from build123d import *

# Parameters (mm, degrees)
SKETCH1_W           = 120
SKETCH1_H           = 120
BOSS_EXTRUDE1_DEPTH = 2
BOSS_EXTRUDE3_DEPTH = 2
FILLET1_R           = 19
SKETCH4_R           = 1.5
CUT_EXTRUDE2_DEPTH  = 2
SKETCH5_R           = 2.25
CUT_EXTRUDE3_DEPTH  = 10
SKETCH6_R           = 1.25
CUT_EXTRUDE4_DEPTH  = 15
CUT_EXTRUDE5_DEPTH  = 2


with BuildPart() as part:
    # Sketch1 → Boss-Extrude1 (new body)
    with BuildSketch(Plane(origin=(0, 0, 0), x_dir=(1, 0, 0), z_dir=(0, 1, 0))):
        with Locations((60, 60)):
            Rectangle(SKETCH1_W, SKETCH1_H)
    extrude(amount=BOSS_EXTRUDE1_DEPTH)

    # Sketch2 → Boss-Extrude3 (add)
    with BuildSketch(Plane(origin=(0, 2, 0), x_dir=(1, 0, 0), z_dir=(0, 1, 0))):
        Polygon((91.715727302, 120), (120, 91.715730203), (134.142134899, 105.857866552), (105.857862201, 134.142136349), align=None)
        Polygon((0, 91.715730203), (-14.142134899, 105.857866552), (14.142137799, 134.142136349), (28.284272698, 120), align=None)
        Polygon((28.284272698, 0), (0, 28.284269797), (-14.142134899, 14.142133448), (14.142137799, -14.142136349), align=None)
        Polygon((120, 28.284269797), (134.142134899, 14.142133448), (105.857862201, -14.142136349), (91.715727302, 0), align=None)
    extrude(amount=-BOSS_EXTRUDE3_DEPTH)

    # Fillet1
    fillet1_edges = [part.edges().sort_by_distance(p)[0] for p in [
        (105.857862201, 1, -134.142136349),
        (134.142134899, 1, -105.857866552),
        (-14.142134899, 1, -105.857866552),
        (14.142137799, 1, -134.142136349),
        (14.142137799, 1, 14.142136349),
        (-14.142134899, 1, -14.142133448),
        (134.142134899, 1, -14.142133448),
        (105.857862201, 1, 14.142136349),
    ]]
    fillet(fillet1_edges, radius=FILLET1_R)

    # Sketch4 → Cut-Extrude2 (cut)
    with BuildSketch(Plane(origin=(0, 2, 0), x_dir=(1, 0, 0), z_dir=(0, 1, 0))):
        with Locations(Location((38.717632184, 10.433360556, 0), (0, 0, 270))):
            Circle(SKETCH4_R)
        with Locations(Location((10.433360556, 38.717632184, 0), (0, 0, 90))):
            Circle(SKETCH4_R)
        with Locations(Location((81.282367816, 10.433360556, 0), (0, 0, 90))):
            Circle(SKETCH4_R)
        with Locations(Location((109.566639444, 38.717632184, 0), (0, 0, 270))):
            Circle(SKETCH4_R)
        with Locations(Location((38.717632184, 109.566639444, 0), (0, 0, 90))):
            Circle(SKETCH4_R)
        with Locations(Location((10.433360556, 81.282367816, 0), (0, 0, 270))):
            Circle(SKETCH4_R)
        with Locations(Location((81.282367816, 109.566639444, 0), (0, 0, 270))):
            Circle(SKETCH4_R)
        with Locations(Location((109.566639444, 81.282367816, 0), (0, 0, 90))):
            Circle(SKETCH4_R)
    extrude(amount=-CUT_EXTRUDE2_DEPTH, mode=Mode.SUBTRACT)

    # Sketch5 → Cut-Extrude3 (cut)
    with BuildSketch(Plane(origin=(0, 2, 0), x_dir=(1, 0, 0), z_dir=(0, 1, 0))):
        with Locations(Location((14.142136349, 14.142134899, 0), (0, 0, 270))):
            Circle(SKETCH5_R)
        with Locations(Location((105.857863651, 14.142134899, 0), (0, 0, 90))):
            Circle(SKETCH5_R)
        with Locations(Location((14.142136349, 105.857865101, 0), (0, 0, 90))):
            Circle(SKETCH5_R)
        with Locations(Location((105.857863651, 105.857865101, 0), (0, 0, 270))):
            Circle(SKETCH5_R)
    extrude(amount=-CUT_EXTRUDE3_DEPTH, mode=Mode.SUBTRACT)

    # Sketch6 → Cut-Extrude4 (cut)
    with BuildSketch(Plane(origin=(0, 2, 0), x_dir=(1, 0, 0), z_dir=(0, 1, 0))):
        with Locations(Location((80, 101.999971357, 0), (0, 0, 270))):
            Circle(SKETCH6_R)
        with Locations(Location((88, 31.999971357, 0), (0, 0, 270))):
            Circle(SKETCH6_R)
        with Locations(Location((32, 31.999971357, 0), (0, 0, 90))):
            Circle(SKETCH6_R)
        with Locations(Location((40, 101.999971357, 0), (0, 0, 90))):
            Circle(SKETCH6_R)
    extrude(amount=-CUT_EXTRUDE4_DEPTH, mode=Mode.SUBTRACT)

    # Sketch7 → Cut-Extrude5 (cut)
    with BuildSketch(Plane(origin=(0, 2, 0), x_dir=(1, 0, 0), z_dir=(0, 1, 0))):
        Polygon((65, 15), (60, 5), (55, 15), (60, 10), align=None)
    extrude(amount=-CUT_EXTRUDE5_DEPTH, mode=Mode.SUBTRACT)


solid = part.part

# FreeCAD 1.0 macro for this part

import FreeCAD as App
import Part
import Sketcher
from FreeCAD import Vector


def edges_at(feature, points):
    """Names of the edges that pass closest to the given points."""
    edges = feature.Shape.Edges
    near = lambda p: min(range(len(edges)), key=lambda i: edges[i].distToShape(Part.Vertex(*p))[0])
    return sorted({f"Edge{near(p) + 1}" for p in points})

doc = App.newDocument("Part")
params = doc.addObject("Spreadsheet::Sheet", "Params")
for row, (alias, value) in enumerate([
    ("sketch1_width", "120 mm"),
    ("pad1_length", "2 mm"),
    ("sketch2_length", "40 mm"),
    ("pad2_length", "2 mm"),
    ("fillet_radius", "19 mm"),
    ("sketch3_diameter", "3 mm"),
    ("pocket1_length", "2 mm"),
    ("sketch4_diameter", "4.5 mm"),
    ("pocket2_length", "10 mm"),
    ("sketch5_diameter", "2.5 mm"),
    ("pocket3_length", "15 mm"),
    ("pocket4_length", "2 mm"),
], start=1):
    params.set(f"A{row}", alias)
    params.set(f"B{row}", "=" + value)
    params.setAlias(f"B{row}", alias)

body = doc.addObject("PartDesign::Body", "Body")

# Sketch on XZ plane
sketch1 = doc.addObject("Sketcher::SketchObject", "Sketch")
body.addObject(sketch1)
sketch1.AttachmentSupport = (doc.XZ_Plane, [""])
sketch1.MapMode = "FlatFace"
sketch1.addGeometry([
    Part.LineSegment(Vector(0, -120, 0), Vector(0, 0, 0)),
    Part.LineSegment(Vector(0, 0, 0), Vector(120, 0, 0)),
    Part.LineSegment(Vector(120, 0, 0), Vector(120, -120, 0)),
    Part.LineSegment(Vector(120, -120, 0), Vector(0, -120, 0)),
], False)
sketch1.addConstraint([
    Sketcher.Constraint("Coincident", 0, 2, 1, 1),
    Sketcher.Constraint("Coincident", 1, 2, 2, 1),
    Sketcher.Constraint("Coincident", 2, 2, 3, 1),
    Sketcher.Constraint("Coincident", 3, 2, 0, 1),
    Sketcher.Constraint("Vertical", 0),
    Sketcher.Constraint("Horizontal", 1),
    Sketcher.Constraint("Vertical", 2),
    Sketcher.Constraint("Horizontal", 3),
    Sketcher.Constraint("Coincident", 0, 2, -1, 1),
    Sketcher.Constraint("Equal", 3, 0),
    Sketcher.Constraint("DistanceX", 1, 1, 1, 2, 120.0),
])
sketch1.setExpression("Constraints[10]", "Params.sketch1_width")
pad1 = doc.addObject("PartDesign::Pad", "Pad")
body.addObject(pad1)
pad1.Profile = sketch1
pad1.setExpression("Length", "Params.pad1_length")
pad1.Reversed = True

# Sketch on XZ plane
sketch2 = doc.addObject("Sketcher::SketchObject", "Sketch001")
body.addObject(sketch2)
sketch2.AttachmentSupport = (doc.XZ_Plane, [""])
sketch2.MapMode = "FlatFace"
sketch2.AttachmentOffset = App.Placement(Vector(0, 0, -2), App.Rotation())
sketch2.addGeometry([
    Part.LineSegment(Vector(92, -120, 0), Vector(120, -92, 0)),  # 0
    Part.LineSegment(Vector(120, -92, 0), Vector(134, -106, 0)),  # 1
    Part.LineSegment(Vector(134, -106, 0), Vector(106, -134, 0)),  # 2
    Part.LineSegment(Vector(106, -134, 0), Vector(92, -120, 0)),  # 3
    Part.LineSegment(Vector(-14, -106, 0), Vector(0, -92, 0)),  # 4
    Part.LineSegment(Vector(0, -92, 0), Vector(28, -120, 0)),  # 5
    Part.LineSegment(Vector(28, -120, 0), Vector(14, -134, 0)),  # 6
    Part.LineSegment(Vector(14, -134, 0), Vector(-14, -106, 0)),  # 7
    Part.LineSegment(Vector(28, 0, 0), Vector(0, -28, 0)),  # 8
    Part.LineSegment(Vector(0, -28, 0), Vector(-14, -14, 0)),  # 9
    Part.LineSegment(Vector(-14, -14, 0), Vector(14, 14, 0)),  # 10
    Part.LineSegment(Vector(14, 14, 0), Vector(28, 0, 0)),  # 11
    Part.LineSegment(Vector(134, -14, 0), Vector(120, -28, 0)),  # 12
    Part.LineSegment(Vector(120, -28, 0), Vector(92, 0, 0)),  # 13
    Part.LineSegment(Vector(92, 0, 0), Vector(106, 14, 0)),  # 14
    Part.LineSegment(Vector(106, 14, 0), Vector(134, -14, 0)),  # 15
], False)
sketch2.addConstraint([
    Sketcher.Constraint("Coincident", 0, 2, 1, 1),
    Sketcher.Constraint("Coincident", 1, 2, 2, 1),
    Sketcher.Constraint("Coincident", 2, 2, 3, 1),
    Sketcher.Constraint("Coincident", 3, 2, 0, 1),
    Sketcher.Constraint("Coincident", 4, 2, 5, 1),
    Sketcher.Constraint("Coincident", 5, 2, 6, 1),
    Sketcher.Constraint("Coincident", 6, 2, 7, 1),
    Sketcher.Constraint("Coincident", 7, 2, 4, 1),
    Sketcher.Constraint("Coincident", 8, 2, 9, 1),
    Sketcher.Constraint("Coincident", 9, 2, 10, 1),
    Sketcher.Constraint("Coincident", 10, 2, 11, 1),
    Sketcher.Constraint("Coincident", 11, 2, 8, 1),
    Sketcher.Constraint("Coincident", 12, 2, 13, 1),
    Sketcher.Constraint("Coincident", 13, 2, 14, 1),
    Sketcher.Constraint("Coincident", 14, 2, 15, 1),
    Sketcher.Constraint("Coincident", 15, 2, 12, 1),
    Sketcher.Constraint("Symmetric", 9, 2, 10, 2, -1, 1),
    Sketcher.Constraint("PointOnObject", 4, 2, -2),
    Sketcher.Constraint("PointOnObject", 8, 2, -2),
    Sketcher.Constraint("PointOnObject", 11, 2, -1),
    Sketcher.Constraint("PointOnObject", 13, 2, -1),
    Sketcher.Constraint("Perpendicular", 0, 1),
    Sketcher.Constraint("Perpendicular", 1, 2),
    Sketcher.Constraint("Perpendicular", 2, 3),
    Sketcher.Constraint("Perpendicular", 3, 4),
    Sketcher.Constraint("Perpendicular", 4, 5),
    Sketcher.Constraint("Perpendicular", 5, 6),
    Sketcher.Constraint("Perpendicular", 6, 7),
    Sketcher.Constraint("Perpendicular", 7, 8),
    Sketcher.Constraint("Perpendicular", 8, 9),
    Sketcher.Constraint("Perpendicular", 9, 10),
    Sketcher.Constraint("Perpendicular", 10, 11),
    Sketcher.Constraint("Perpendicular", 11, 12),
    Sketcher.Constraint("Perpendicular", 12, 13),
    Sketcher.Constraint("Perpendicular", 13, 14),
    Sketcher.Constraint("Perpendicular", 14, 15),
    Sketcher.Constraint("Horizontal", 0, 2, 4, 2),
    Sketcher.Constraint("Horizontal", 3, 2, 5, 2),
    Sketcher.Constraint("Horizontal", 2, 2, 6, 2),
    Sketcher.Constraint("Horizontal", 8, 2, 12, 2),
    Sketcher.Constraint("Horizontal", 10, 2, 14, 2),
    Sketcher.Constraint("Vertical", 7, 2, 9, 2),
    Sketcher.Constraint("Vertical", 6, 2, 10, 2),
    Sketcher.Constraint("Vertical", 0, 2, 12, 2),
    Sketcher.Constraint("Distance", 0, 40.0),
    Sketcher.Constraint("DistanceX", -1, 1, 0, 2, 120.0),
    Sketcher.Constraint("DistanceY", 3, 2, -1, 1, 120.0),
])
sketch2.setExpression("Constraints[44]", "Params.sketch2_length")
pad2 = doc.addObject("PartDesign::Pad", "Pad001")
body.addObject(pad2)
pad2.Profile = sketch2
pad2.setExpression("Length", "Params.pad2_length")
doc.recompute()

fillet = doc.addObject("PartDesign::Fillet", "Fillet")
body.addObject(fillet)
fillet.Base = (pad2, edges_at(pad2, [
    (105.858, 1, -134.142),
    (134.142, 1, -105.858),
    (-14.142, 1, -105.858),
    (14.142, 1, -134.142),
    (14.142, 1, 14.142),
    (-14.142, 1, -14.142),
    (134.142, 1, -14.142),
    (105.858, 1, 14.142),
]))
fillet.setExpression("Radius", "Params.fillet_radius")

# Sketch on XZ plane
sketch3 = doc.addObject("Sketcher::SketchObject", "Sketch002")
body.addObject(sketch3)
sketch3.AttachmentSupport = (doc.XZ_Plane, [""])
sketch3.MapMode = "FlatFace"
sketch3.AttachmentOffset = App.Placement(Vector(0, 0, -2), App.Rotation())
sketch3.addGeometry([
    Part.Circle(Vector(38.7, -10.4, 0), Vector(0, 0, 1), 1.5),  # 0
    Part.Circle(Vector(10.4, -38.7, 0), Vector(0, 0, 1), 1.5),  # 1
    Part.Circle(Vector(81.3, -10.4, 0), Vector(0, 0, 1), 1.5),  # 2
    Part.Circle(Vector(109.6, -38.7, 0), Vector(0, 0, 1), 1.5),  # 3
    Part.Circle(Vector(38.7, -109.6, 0), Vector(0, 0, 1), 1.5),  # 4
    Part.Circle(Vector(10.4, -81.3, 0), Vector(0, 0, 1), 1.5),  # 5
    Part.Circle(Vector(81.3, -109.6, 0), Vector(0, 0, 1), 1.5),  # 6
    Part.Circle(Vector(109.6, -81.3, 0), Vector(0, 0, 1), 1.5),  # 7
], False)
sketch3.addConstraint([
    Sketcher.Constraint("Equal", 0, 1),
    Sketcher.Constraint("Equal", 1, 2),
    Sketcher.Constraint("Equal", 2, 3),
    Sketcher.Constraint("Equal", 3, 4),
    Sketcher.Constraint("Equal", 4, 5),
    Sketcher.Constraint("Equal", 5, 6),
    Sketcher.Constraint("Equal", 6, 7),
    Sketcher.Constraint("Horizontal", 0, 3, 2, 3),
    Sketcher.Constraint("Horizontal", 1, 3, 3, 3),
    Sketcher.Constraint("Horizontal", 4, 3, 6, 3),
    Sketcher.Constraint("Horizontal", 5, 3, 7, 3),
    Sketcher.Constraint("Vertical", 0, 3, 4, 3),
    Sketcher.Constraint("Vertical", 1, 3, 5, 3),
    Sketcher.Constraint("Vertical", 2, 3, 6, 3),
    Sketcher.Constraint("Vertical", 3, 3, 7, 3),
    Sketcher.Constraint("Diameter", 0, 3.0),
    Sketcher.Constraint("DistanceY", 0, 3, -1, 1, 10.433361),
    Sketcher.Constraint("DistanceX", -1, 1, 1, 3, 10.433361),
    Sketcher.Constraint("DistanceX", -1, 1, 3, 3, 109.566639),
    Sketcher.Constraint("DistanceY", 4, 3, -1, 1, 109.566639),
    Sketcher.Constraint("DistanceX", 1, 3, 0, 3, 28.284272),
    Sketcher.Constraint("DistanceY", 1, 3, 0, 3, 28.284272),
    Sketcher.Constraint("DistanceX", 2, 3, 3, 3, 28.284272),
    Sketcher.Constraint("DistanceY", 4, 3, 5, 3, 28.284272),
])
sketch3.setExpression("Constraints[15]", "Params.sketch3_diameter")
pocket1 = doc.addObject("PartDesign::Pocket", "Pocket")
body.addObject(pocket1)
pocket1.Profile = sketch3
pocket1.setExpression("Length", "Params.pocket1_length")
pocket1.Reversed = True

# Sketch on XZ plane
sketch4 = doc.addObject("Sketcher::SketchObject", "Sketch003")
body.addObject(sketch4)
sketch4.AttachmentSupport = (doc.XZ_Plane, [""])
sketch4.MapMode = "FlatFace"
sketch4.AttachmentOffset = App.Placement(Vector(0, 0, -2), App.Rotation())
sketch4.addGeometry([
    Part.Circle(Vector(14.1, -14.1, 0), Vector(0, 0, 1), 2.2),
    Part.Circle(Vector(105.9, -14.1, 0), Vector(0, 0, 1), 2.2),
    Part.Circle(Vector(14.1, -105.9, 0), Vector(0, 0, 1), 2.2),
    Part.Circle(Vector(105.9, -105.9, 0), Vector(0, 0, 1), 2.2),
], False)
sketch4.addConstraint([
    Sketcher.Constraint("Equal", 0, 1),
    Sketcher.Constraint("Equal", 1, 2),
    Sketcher.Constraint("Equal", 2, 3),
    Sketcher.Constraint("Horizontal", 0, 3, 1, 3),
    Sketcher.Constraint("Horizontal", 2, 3, 3, 3),
    Sketcher.Constraint("Vertical", 0, 3, 2, 3),
    Sketcher.Constraint("Vertical", 1, 3, 3, 3),
    Sketcher.Constraint("Diameter", 0, 4.5),
    Sketcher.Constraint("DistanceY", 2, 3, 0, 3, 91.71573),
    Sketcher.Constraint("DistanceX", -1, 1, 0, 3, 14.142136),
    Sketcher.Constraint("DistanceY", 0, 3, -1, 1, 14.142135),
    Sketcher.Constraint("DistanceX", -1, 1, 1, 3, 105.857864),
])
sketch4.setExpression("Constraints[7]", "Params.sketch4_diameter")
pocket2 = doc.addObject("PartDesign::Pocket", "Pocket001")
body.addObject(pocket2)
pocket2.Profile = sketch4
pocket2.setExpression("Length", "Params.pocket2_length")
pocket2.Reversed = True

# Sketch on XZ plane
sketch5 = doc.addObject("Sketcher::SketchObject", "Sketch004")
body.addObject(sketch5)
sketch5.AttachmentSupport = (doc.XZ_Plane, [""])
sketch5.MapMode = "FlatFace"
sketch5.AttachmentOffset = App.Placement(Vector(0, 0, -2), App.Rotation())
sketch5.addGeometry([
    Part.Circle(Vector(80, -102, 0), Vector(0, 0, 1), 1.2),
    Part.Circle(Vector(88, -32, 0), Vector(0, 0, 1), 1.2),
    Part.Circle(Vector(32, -32, 0), Vector(0, 0, 1), 1.2),
    Part.Circle(Vector(40, -102, 0), Vector(0, 0, 1), 1.2),
], False)
sketch5.addConstraint([
    Sketcher.Constraint("Equal", 0, 1),
    Sketcher.Constraint("Equal", 1, 2),
    Sketcher.Constraint("Equal", 2, 3),
    Sketcher.Constraint("Horizontal", 1, 3, 2, 3),
    Sketcher.Constraint("Horizontal", 0, 3, 3, 3),
    Sketcher.Constraint("Diameter", 0, 2.5),
    Sketcher.Constraint("DistanceX", -1, 1, 0, 3, 80.0),
    Sketcher.Constraint("DistanceX", -1, 1, 1, 3, 88.0),
    Sketcher.Constraint("DistanceX", -1, 1, 2, 3, 32.0),
    Sketcher.Constraint("DistanceX", -1, 1, 3, 3, 40.0),
    Sketcher.Constraint("DistanceY", 0, 3, 1, 3, 70.0),
    Sketcher.Constraint("DistanceY", 0, 3, -1, 1, 101.999971),
])
sketch5.setExpression("Constraints[5]", "Params.sketch5_diameter")
pocket3 = doc.addObject("PartDesign::Pocket", "Pocket002")
body.addObject(pocket3)
pocket3.Profile = sketch5
pocket3.setExpression("Length", "Params.pocket3_length")
pocket3.Reversed = True

# Sketch on XZ plane
sketch6 = doc.addObject("Sketcher::SketchObject", "Sketch005")
body.addObject(sketch6)
sketch6.AttachmentSupport = (doc.XZ_Plane, [""])
sketch6.MapMode = "FlatFace"
sketch6.AttachmentOffset = App.Placement(Vector(0, 0, -2), App.Rotation())
sketch6.addGeometry([
    Part.LineSegment(Vector(60, -5, 0), Vector(65, -15, 0)),
    Part.LineSegment(Vector(65, -15, 0), Vector(60, -10, 0)),
    Part.LineSegment(Vector(60, -10, 0), Vector(55, -15, 0)),
    Part.LineSegment(Vector(55, -15, 0), Vector(60, -5, 0)),
], False)
sketch6.addConstraint([
    Sketcher.Constraint("Coincident", 0, 2, 1, 1),
    Sketcher.Constraint("Coincident", 1, 2, 2, 1),
    Sketcher.Constraint("Coincident", 2, 2, 3, 1),
    Sketcher.Constraint("Coincident", 3, 2, 0, 1),
    Sketcher.Constraint("Perpendicular", 1, 2),
    Sketcher.Constraint("Horizontal", 0, 2, 2, 2),
    Sketcher.Constraint("Vertical", 1, 2, 3, 2),
    Sketcher.Constraint("Equal", 1, 2),
    Sketcher.Constraint("DistanceX", -1, 1, 0, 2, 65.0),
    Sketcher.Constraint("DistanceY", 0, 2, -1, 1, 15.0),
    Sketcher.Constraint("DistanceX", -1, 1, 1, 2, 60.0),
    Sketcher.Constraint("DistanceY", 3, 2, -1, 1, 5.0),
])
pocket4 = doc.addObject("PartDesign::Pocket", "Pocket003")
body.addObject(pocket4)
pocket4.Profile = sketch6
pocket4.setExpression("Length", "Params.pocket4_length")
pocket4.Reversed = True

doc.recompute()
